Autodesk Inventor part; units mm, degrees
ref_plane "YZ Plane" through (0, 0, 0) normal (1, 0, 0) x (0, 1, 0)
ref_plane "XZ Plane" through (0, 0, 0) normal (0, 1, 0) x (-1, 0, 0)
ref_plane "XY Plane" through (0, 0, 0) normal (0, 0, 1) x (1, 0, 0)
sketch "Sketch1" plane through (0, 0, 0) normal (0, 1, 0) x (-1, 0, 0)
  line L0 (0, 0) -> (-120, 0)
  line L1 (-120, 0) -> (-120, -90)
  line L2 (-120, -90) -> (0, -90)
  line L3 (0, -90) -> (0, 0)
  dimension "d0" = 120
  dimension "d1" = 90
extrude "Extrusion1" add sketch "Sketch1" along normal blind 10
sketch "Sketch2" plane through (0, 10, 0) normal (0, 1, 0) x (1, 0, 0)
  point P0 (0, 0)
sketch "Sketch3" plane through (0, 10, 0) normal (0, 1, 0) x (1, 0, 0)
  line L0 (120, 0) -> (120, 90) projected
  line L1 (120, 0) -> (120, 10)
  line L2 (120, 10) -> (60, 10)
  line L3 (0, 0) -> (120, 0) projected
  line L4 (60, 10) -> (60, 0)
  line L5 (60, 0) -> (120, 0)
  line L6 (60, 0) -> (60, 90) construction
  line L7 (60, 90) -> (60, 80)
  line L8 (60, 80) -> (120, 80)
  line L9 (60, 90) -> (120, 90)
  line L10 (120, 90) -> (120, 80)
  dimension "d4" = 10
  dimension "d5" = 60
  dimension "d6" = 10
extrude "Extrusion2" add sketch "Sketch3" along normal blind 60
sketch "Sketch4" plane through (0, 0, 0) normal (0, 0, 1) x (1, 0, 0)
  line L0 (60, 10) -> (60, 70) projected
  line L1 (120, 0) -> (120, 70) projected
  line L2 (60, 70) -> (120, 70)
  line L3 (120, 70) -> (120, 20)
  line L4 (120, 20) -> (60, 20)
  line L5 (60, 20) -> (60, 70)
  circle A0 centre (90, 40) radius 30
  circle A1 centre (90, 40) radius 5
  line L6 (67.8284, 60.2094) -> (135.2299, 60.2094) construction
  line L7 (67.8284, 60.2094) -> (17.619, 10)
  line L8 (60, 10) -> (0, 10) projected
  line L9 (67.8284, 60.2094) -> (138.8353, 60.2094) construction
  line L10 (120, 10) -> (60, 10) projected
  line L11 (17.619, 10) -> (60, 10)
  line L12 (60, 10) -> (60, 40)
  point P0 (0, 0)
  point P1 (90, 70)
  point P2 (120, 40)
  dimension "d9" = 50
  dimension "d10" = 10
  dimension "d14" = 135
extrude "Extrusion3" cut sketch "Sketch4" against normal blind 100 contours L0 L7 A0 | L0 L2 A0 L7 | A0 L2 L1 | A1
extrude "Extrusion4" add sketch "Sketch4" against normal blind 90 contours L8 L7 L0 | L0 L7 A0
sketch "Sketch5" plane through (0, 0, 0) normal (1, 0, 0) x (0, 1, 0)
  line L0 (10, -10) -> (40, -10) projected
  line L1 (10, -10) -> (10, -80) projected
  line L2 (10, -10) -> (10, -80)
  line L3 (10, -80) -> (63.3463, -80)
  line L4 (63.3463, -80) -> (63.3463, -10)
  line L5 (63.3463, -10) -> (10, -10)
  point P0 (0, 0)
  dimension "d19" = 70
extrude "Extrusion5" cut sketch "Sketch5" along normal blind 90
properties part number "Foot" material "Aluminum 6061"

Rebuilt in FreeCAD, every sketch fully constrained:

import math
import FreeCAD as App
import Part
import Sketcher
Q = App.Units.Quantity


def add_polygon(sketch, points):
    """Adds a closed chain of lines whose ends are joined by coincident constraints."""
    first, n = sketch.GeometryCount, len(points)
    for a, b in zip(points, points[1:] + points[:1]):
        sketch.addGeometry(Part.LineSegment(App.Vector(*a, 0), App.Vector(*b, 0)), False)
    for i in range(n):
        sketch.addConstraint(Sketcher.Constraint("Coincident", first + i, 2, first + (i + 1) % n, 1))

doc = App.newDocument("Part")
body = doc.addObject("PartDesign::Body", "Body")

# Sketch on XZ plane
sketch1 = doc.addObject("Sketcher::SketchObject", "Sketch")
body.addObject(sketch1)
sketch1.AttachmentSupport = (doc.XZ_Plane, [""])
sketch1.MapMode = "FlatFace"
add_polygon(sketch1, [(0, -90), (0, 0), (120, 0), (120, -90)])  # lines 0-3
sketch1.addConstraint([
    Sketcher.Constraint("Vertical", 0),
    Sketcher.Constraint("Horizontal", 1),
    Sketcher.Constraint("Vertical", 2),
    Sketcher.Constraint("Horizontal", 3),
    Sketcher.Constraint("Coincident", 0, 2, -1, 1),
    Sketcher.Constraint("DistanceX", 1, 1, 1, 2, Q("4.7244 in")),
    Sketcher.Constraint("DistanceY", 0, 1, 0, 2, Q("3.5433 in")),
])
pad1 = doc.addObject("PartDesign::Pad", "Pad")
body.addObject(pad1)
pad1.Profile = sketch1
pad1.Length = Q("0.3937008 in")
pad1.Reversed = True

# Sketch on XZ plane
sketch2 = doc.addObject("Sketcher::SketchObject", "Sketch001")
body.addObject(sketch2)
sketch2.AttachmentSupport = (doc.XZ_Plane, [""])
sketch2.MapMode = "FlatFace"
sketch2.AttachmentOffset = App.Placement(App.Vector(0, 0, -0.3937008 * 25.4), App.Rotation())
add_polygon(sketch2, [(60, 0), (120, 0), (120, -10), (60, -10)])  # lines 0-3
add_polygon(sketch2, [(60, -80), (120, -80), (120, -90), (60, -90)])  # lines 4-7
sketch2.addConstraint([
    Sketcher.Constraint("Horizontal", 0),
    Sketcher.Constraint("Vertical", 1),
    Sketcher.Constraint("Horizontal", 2),
    Sketcher.Constraint("Vertical", 3),
    Sketcher.Constraint("Horizontal", 4),
    Sketcher.Constraint("Vertical", 5),
    Sketcher.Constraint("Horizontal", 6),
    Sketcher.Constraint("Vertical", 7),
    Sketcher.Constraint("PointOnObject", 0, 2, -1),
    Sketcher.Constraint("Vertical", 1, 2, 4, 2),
    Sketcher.Constraint("Vertical", 3, 2, 6, 2),
    Sketcher.Constraint("Equal", 3, 5),
    Sketcher.Constraint("DistanceX", 0, 1, 0, 2, Q("2.3622 in")),
    Sketcher.Constraint("DistanceY", 1, 2, 1, 1, Q("0.3937 in")),
    Sketcher.Constraint("DistanceX", -1, 1, 2, 2, Q("2.3622 in")),
    Sketcher.Constraint("DistanceY", 4, 2, -1, 1, Q("3.1496 in")),
])
pad2 = doc.addObject("PartDesign::Pad", "Pad001")
body.addObject(pad2)
pad2.Profile = sketch2
pad2.Length = Q("2.3622047 in")
pad2.Reversed = True

# Sketch on XY plane
sketch3 = doc.addObject("Sketcher::SketchObject", "Sketch002")
body.addObject(sketch3)
sketch3.AttachmentSupport = (doc.XY_Plane, [""])
sketch3.MapMode = "FlatFace"
sketch3.addGeometry([
    Part.ArcOfCircle(Part.Circle(App.Vector(90, 40, 0), App.Vector(0, 0, 1), 30), math.radians(90), math.radians(180)),  # 0
    Part.LineSegment(App.Vector(90, 70, 0), App.Vector(60, 70, 0)),  # 1
    Part.LineSegment(App.Vector(60, 70, 0), App.Vector(60, 40, 0)),  # 2
    Part.ArcOfCircle(Part.Circle(App.Vector(90, 40, 0), App.Vector(0, 0, 1), 30), math.radians(0), math.radians(90)),  # 3
    Part.LineSegment(App.Vector(120, 40, 0), App.Vector(120, 70, 0)),  # 4
    Part.LineSegment(App.Vector(120, 70, 0), App.Vector(90, 70, 0)),  # 5
    Part.Circle(App.Vector(90, 40, 0), App.Vector(0, 0, 1), 5),  # 6
], False)
sketch3.addConstraint([
    Sketcher.Constraint("Tangent", 0, 1, 1, 1),
    Sketcher.Constraint("Coincident", 1, 2, 2, 1),
    Sketcher.Constraint("Tangent", 2, 2, 0, 2),
    Sketcher.Constraint("Tangent", 3, 1, 4, 1),
    Sketcher.Constraint("Coincident", 4, 2, 5, 1),
    Sketcher.Constraint("Tangent", 5, 2, 3, 2),
    Sketcher.Constraint("Horizontal", 1),
    Sketcher.Constraint("Vertical", 2),
    Sketcher.Constraint("Vertical", 4),
    Sketcher.Constraint("Horizontal", 5),
    Sketcher.Constraint("Coincident", 3, 3, 0, 3),
    Sketcher.Constraint("Coincident", 6, 3, 0, 3),
    Sketcher.Constraint("Equal", 0, 3),
    Sketcher.Constraint("Diameter", 6, Q("0.3937 in")),
    Sketcher.Constraint("Radius", 0, Q("1.1811 in")),
    Sketcher.Constraint("DistanceX", -1, 1, 0, 3, Q("3.5433 in")),
    Sketcher.Constraint("DistanceY", -1, 1, 0, 3, Q("1.5748 in")),
])
pocket1 = doc.addObject("PartDesign::Pocket", "Pocket")
body.addObject(pocket1)
pocket1.Profile = sketch3
pocket1.Length = Q("3.9370079 in")

# Sketch on XY plane
sketch4 = doc.addObject("Sketcher::SketchObject", "Sketch003")
body.addObject(sketch4)
sketch4.AttachmentSupport = (doc.XY_Plane, [""])
sketch4.MapMode = "FlatFace"
sketch4.addGeometry([
    Part.LineSegment(App.Vector(17.619, 10, 0), App.Vector(60, 10, 0)),
    Part.LineSegment(App.Vector(60, 10, 0), App.Vector(60, 40, 0)),
    Part.ArcOfCircle(Part.Circle(App.Vector(90, 40, 0), App.Vector(0, 0, 1), 30), math.radians(137.650847), math.radians(180)),
    Part.LineSegment(App.Vector(67.8284, 60.2094, 0), App.Vector(17.619, 10, 0)),
], False)
sketch4.addConstraint([
    Sketcher.Constraint("Coincident", 0, 2, 1, 1),
    Sketcher.Constraint("Tangent", 1, 2, 2, 2),
    Sketcher.Constraint("Coincident", 2, 1, 3, 1),
    Sketcher.Constraint("Coincident", 3, 2, 0, 1),
    Sketcher.Constraint("Horizontal", 0),
    Sketcher.Constraint("Vertical", 1),
    Sketcher.Constraint("Angle", 3, Q("-135 deg")),
    Sketcher.Constraint("DistanceY", -1, 1, 0, 2, Q("0.3937 in")),
    Sketcher.Constraint("Radius", 2, Q("1.1811 in")),
    Sketcher.Constraint("DistanceY", 1, 1, 1, 2, Q("1.1811 in")),
    Sketcher.Constraint("DistanceX", 0, 1, 0, 2, Q("42.381 mm")),
    Sketcher.Constraint("DistanceX", -1, 1, 2, 3, Q("3.5433 in")),
])
pad3 = doc.addObject("PartDesign::Pad", "Pad002")
body.addObject(pad3)
pad3.Profile = sketch4
pad3.Length = Q("3.5433071 in")
pad3.Reversed = True

# Sketch on YZ plane
sketch5 = doc.addObject("Sketcher::SketchObject", "Sketch004")
body.addObject(sketch5)
sketch5.AttachmentSupport = (doc.YZ_Plane, [""])
sketch5.MapMode = "FlatFace"
add_polygon(sketch5, [(63.3463, -10), (10, -10), (10, -80), (63.3463, -80)])  # lines 0-3
sketch5.addConstraint([
    Sketcher.Constraint("Horizontal", 0),
    Sketcher.Constraint("Vertical", 1),
    Sketcher.Constraint("Horizontal", 2),
    Sketcher.Constraint("Vertical", 3),
    Sketcher.Constraint("DistanceY", 1, 2, 1, 1, Q("2.7559 in")),
    Sketcher.Constraint("DistanceX", 0, 2, 0, 1, Q("53.3463 mm")),
    Sketcher.Constraint("DistanceX", -1, 1, 0, 2, Q("0.3937 in")),
    Sketcher.Constraint("DistanceY", 0, 2, -1, 1, Q("0.3937 in")),
])
pocket2 = doc.addObject("PartDesign::Pocket", "Pocket001")
body.addObject(pocket2)
pocket2.Profile = sketch5
pocket2.Length = Q("3.5433071 in")
pocket2.Reversed = True

doc.recompute()
